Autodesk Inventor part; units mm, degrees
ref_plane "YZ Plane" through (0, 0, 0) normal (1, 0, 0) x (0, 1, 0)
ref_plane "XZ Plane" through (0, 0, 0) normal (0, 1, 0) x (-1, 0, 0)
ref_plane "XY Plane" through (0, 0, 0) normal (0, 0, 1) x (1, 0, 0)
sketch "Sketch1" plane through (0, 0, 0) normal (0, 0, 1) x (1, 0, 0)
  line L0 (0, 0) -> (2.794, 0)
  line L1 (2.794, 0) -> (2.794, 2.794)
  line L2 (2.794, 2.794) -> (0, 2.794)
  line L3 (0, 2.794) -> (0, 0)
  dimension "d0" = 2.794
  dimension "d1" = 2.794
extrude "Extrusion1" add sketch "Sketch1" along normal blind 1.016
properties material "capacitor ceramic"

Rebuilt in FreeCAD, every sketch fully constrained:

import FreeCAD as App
import Part
import Sketcher

V = App.Vector
Q = App.Units.Quantity


def add_polygon(sketch, points):
    """Adds a closed chain of lines whose ends are joined by coincident constraints."""
    first, n = sketch.GeometryCount, len(points)
    for a, b in zip(points, points[1:] + points[:1]):
        sketch.addGeometry(Part.LineSegment(App.Vector(*a, 0), App.Vector(*b, 0)), False)
    for i in range(n):
        sketch.addConstraint(Sketcher.Constraint("Coincident", first + i, 2, first + (i + 1) % n, 1))

doc = App.newDocument("Part")
params = doc.addObject("Spreadsheet::Sheet", "Params")
for row, (alias, value) in enumerate([
    ("sketch1_width", "0.11 in"),
    ("pad1_length", "0.04 in"),
], start=1):
    params.set(f"A{row}", alias)
    params.set(f"B{row}", "=" + value)
    params.setAlias(f"B{row}", alias)

body = doc.addObject("PartDesign::Body", "Body")

sketch1 = body.newObject("Sketcher::SketchObject", "Sketch")
sketch1.AttachmentSupport = (doc.getObject("XY_Plane"), [""])
sketch1.MapMode = "FlatFace"
add_polygon(sketch1, [(0, 2.8), (0, 0), (2.8, 0), (2.8, 2.8)])
sketch1.addConstraint([
    Sketcher.Constraint("Vertical", 0),
    Sketcher.Constraint("Horizontal", 1),
    Sketcher.Constraint("Vertical", 2),
    Sketcher.Constraint("Horizontal", 3),
    Sketcher.Constraint("Coincident", 0, 2, -1, 1),
    Sketcher.Constraint("Equal", 3, 0),
    Sketcher.Constraint("DistanceX", 1, 1, 1, 2, Q("0.11 in")),
])
sketch1.setExpression("Constraints[10]", "Params.sketch1_width")
pad1 = body.newObject("PartDesign::Pad", "Pad")
pad1.Profile = sketch1
pad1.setExpression("Length", "Params.pad1_length")

doc.recompute()
